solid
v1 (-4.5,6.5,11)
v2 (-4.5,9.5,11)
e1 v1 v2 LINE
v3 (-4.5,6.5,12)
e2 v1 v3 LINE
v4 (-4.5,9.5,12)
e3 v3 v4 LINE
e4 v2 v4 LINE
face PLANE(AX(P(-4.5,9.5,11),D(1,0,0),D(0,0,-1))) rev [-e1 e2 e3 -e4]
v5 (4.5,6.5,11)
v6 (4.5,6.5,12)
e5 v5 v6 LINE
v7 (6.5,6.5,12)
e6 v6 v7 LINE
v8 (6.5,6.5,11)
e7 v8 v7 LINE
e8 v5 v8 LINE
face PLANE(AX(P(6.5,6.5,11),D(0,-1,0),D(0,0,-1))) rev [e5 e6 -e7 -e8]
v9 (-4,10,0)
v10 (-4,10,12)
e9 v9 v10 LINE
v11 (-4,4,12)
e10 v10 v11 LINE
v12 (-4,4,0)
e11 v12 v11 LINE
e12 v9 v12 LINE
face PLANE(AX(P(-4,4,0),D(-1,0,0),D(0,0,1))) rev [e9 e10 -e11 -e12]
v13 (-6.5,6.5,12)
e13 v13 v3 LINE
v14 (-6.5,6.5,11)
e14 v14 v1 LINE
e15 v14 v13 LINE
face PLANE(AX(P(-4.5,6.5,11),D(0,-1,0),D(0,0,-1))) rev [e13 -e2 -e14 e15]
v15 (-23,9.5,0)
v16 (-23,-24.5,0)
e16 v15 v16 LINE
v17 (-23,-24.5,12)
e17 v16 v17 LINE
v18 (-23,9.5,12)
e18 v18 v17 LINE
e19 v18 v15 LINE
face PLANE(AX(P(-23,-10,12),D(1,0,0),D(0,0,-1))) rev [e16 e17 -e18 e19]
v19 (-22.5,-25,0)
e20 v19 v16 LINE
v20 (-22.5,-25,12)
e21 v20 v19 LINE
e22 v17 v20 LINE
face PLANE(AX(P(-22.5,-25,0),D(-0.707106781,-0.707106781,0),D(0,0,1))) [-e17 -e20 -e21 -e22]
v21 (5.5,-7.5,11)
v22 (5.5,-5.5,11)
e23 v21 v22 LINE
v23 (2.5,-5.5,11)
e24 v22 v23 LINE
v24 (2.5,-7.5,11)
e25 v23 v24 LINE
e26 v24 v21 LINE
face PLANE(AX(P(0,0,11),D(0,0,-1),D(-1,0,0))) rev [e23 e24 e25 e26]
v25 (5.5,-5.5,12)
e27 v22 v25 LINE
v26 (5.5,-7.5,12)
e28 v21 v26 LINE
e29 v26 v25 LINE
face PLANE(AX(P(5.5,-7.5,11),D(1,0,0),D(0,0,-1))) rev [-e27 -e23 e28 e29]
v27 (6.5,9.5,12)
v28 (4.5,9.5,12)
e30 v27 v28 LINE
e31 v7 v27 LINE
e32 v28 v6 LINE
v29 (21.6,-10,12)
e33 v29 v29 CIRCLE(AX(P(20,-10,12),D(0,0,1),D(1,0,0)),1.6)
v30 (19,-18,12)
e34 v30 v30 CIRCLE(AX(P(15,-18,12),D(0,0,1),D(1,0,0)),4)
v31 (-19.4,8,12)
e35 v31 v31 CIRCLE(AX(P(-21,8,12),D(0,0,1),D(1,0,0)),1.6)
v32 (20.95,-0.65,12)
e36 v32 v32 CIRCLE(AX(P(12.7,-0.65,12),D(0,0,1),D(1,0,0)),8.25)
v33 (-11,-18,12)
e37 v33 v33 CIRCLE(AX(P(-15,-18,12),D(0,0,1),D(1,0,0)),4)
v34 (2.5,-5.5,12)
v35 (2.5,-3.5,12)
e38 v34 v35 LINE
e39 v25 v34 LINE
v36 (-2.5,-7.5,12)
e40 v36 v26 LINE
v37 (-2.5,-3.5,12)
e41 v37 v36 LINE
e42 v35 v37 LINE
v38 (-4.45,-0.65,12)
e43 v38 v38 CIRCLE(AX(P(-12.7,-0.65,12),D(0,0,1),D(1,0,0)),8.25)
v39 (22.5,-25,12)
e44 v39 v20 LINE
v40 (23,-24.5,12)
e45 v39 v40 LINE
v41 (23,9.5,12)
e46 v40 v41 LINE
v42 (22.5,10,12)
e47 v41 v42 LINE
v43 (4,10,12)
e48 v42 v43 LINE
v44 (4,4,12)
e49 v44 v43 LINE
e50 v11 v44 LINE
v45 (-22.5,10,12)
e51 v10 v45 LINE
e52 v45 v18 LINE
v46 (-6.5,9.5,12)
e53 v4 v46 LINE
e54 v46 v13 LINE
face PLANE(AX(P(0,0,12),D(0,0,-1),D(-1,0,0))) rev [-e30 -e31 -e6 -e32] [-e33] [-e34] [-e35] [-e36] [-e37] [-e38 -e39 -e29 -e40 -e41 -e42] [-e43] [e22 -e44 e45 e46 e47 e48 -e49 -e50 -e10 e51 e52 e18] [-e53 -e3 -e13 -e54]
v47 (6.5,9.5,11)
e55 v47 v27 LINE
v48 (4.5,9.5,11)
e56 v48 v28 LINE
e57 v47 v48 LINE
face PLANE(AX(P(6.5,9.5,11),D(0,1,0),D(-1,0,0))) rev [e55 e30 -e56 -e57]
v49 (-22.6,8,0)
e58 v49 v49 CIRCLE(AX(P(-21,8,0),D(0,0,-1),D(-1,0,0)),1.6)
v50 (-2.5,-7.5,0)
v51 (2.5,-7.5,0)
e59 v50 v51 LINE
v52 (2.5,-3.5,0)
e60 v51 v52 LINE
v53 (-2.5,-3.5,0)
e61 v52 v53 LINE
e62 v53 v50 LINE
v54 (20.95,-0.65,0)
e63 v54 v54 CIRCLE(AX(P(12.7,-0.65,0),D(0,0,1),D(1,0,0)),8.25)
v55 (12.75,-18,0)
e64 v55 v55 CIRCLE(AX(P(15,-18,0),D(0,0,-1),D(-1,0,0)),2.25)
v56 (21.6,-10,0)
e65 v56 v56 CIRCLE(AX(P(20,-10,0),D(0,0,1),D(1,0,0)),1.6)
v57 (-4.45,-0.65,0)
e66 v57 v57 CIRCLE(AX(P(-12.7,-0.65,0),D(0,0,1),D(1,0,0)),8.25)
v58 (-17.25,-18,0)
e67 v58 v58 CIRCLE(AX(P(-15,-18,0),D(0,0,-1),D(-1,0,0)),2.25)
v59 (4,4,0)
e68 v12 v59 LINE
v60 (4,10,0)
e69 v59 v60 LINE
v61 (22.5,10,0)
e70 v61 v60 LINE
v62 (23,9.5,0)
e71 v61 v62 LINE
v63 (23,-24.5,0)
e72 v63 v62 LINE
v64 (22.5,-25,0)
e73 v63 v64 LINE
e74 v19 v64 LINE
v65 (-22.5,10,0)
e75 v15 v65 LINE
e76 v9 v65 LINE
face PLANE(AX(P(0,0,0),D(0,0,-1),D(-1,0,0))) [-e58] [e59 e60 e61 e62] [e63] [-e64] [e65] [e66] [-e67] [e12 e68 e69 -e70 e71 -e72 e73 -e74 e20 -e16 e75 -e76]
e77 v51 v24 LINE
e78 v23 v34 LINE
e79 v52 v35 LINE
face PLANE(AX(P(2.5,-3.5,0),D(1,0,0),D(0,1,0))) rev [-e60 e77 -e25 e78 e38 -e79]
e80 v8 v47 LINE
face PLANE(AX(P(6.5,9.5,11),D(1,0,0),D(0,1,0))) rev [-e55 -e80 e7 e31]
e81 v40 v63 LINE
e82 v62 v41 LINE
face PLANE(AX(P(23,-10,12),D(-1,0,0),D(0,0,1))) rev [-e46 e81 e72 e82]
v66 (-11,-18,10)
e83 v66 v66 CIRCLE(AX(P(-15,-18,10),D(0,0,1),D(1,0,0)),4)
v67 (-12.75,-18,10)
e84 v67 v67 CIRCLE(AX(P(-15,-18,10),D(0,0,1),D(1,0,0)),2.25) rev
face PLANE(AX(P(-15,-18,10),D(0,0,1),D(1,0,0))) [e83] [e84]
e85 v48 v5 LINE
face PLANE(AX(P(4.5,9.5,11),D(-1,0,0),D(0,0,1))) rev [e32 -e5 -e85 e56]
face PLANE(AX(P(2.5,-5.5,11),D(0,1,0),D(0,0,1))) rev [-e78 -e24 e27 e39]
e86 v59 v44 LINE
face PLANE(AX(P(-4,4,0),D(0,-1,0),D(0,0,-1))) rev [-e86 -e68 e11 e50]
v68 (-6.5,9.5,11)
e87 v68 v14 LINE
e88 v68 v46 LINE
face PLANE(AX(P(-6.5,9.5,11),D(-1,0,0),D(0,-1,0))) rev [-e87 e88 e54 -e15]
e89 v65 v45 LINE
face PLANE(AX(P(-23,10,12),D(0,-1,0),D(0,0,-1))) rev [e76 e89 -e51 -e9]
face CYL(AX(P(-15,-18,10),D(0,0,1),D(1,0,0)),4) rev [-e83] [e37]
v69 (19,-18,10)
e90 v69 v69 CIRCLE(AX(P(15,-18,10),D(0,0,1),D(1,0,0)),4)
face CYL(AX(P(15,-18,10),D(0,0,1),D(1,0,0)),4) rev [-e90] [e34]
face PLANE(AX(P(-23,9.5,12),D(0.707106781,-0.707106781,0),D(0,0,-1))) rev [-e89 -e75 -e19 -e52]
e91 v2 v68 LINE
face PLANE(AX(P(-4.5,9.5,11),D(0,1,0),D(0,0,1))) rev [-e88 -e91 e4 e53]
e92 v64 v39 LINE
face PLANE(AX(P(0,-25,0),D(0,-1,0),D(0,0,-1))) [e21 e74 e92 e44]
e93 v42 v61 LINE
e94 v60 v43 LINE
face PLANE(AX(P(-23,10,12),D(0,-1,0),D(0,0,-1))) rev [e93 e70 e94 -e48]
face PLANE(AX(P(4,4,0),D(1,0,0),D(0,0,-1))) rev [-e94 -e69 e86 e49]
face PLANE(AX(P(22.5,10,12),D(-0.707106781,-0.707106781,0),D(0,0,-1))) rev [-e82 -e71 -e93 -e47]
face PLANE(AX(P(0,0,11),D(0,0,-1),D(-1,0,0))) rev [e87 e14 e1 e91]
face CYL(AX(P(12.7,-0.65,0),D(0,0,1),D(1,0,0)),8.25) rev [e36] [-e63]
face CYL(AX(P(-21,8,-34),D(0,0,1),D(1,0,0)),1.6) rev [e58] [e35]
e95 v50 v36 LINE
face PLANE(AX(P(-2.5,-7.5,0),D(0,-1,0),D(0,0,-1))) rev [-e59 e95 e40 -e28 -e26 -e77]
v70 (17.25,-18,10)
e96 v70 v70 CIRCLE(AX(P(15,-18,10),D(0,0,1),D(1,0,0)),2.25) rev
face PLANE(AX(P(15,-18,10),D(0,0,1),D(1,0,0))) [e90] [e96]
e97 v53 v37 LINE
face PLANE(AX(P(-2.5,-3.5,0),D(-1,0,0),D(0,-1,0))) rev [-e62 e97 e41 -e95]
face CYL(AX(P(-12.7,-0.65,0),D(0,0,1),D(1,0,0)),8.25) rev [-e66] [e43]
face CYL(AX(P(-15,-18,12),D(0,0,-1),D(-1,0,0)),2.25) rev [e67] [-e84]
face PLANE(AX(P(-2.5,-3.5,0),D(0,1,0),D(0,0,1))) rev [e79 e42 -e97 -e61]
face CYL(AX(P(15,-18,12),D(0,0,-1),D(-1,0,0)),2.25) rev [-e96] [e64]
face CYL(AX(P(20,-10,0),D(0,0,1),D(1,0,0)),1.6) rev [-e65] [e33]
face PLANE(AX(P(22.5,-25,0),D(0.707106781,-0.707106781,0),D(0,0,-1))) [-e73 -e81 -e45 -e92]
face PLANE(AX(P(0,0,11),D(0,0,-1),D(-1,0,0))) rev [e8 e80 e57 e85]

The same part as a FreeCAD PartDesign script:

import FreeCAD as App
import Part
import Sketcher

V = App.Vector


def edges_at(feature, points):
    """Names of the edges that pass closest to the given points."""
    edges = feature.Shape.Edges
    near = lambda p: min(range(len(edges)), key=lambda i: edges[i].distToShape(Part.Vertex(*p))[0])
    return sorted({f"Edge{near(p) + 1}" for p in points})


def add_polygon(sketch, points):
    """Adds a closed chain of lines whose ends are joined by coincident constraints."""
    first, n = sketch.GeometryCount, len(points)
    for a, b in zip(points, points[1:] + points[:1]):
        sketch.addGeometry(Part.LineSegment(App.Vector(*a, 0), App.Vector(*b, 0)), False)
    for i in range(n):
        sketch.addConstraint(Sketcher.Constraint("Coincident", first + i, 2, first + (i + 1) % n, 1))

doc = App.newDocument("Part")
params = doc.addObject("Spreadsheet::Sheet", "Params")
for row, (alias, value) in enumerate([
    ("sketch1_width", "46 mm"),
    ("sketch1_height", "20 mm"),
    ("pad1_length", "12 mm"),
    ("sketch2_diameter", "16.5 mm"),
    ("sketch3_width", "8 mm"),
    ("sketch3_height", "6 mm"),
    ("sketch4_width", "5 mm"),
    ("sketch4_height", "4 mm"),
    ("sketch5_width", "3 mm"),
    ("sketch5_width2", "2 mm"),
    ("pocket4_length", "1 mm"),
    ("sketch6_width", "46 mm"),
    ("sketch6_height", "12 mm"),
    ("pad2_length", "15 mm"),
    ("sketch7_diameter", "3.2 mm"),
    ("pocket5_length", "46 mm"),
    ("sketch8_diameter", "4.5 mm"),
    ("sketch9_diameter", "3.2 mm"),
    ("sketch10_diameter", "8 mm"),
    ("pocket8_length", "2 mm"),
    ("chamfer_size", "0.5 mm"),
    ("chamfer2_size", "0.5 mm"),
], start=1):
    params.set(f"A{row}", alias)
    params.set(f"B{row}", "=" + value)
    params.setAlias(f"B{row}", alias)

body = doc.addObject("PartDesign::Body", "Body")

sketch1 = doc.addObject("Sketcher::SketchObject", "Sketch")
body.addObject(sketch1)
sketch1.AttachmentSupport = (doc.XY_Plane, [""])
sketch1.MapMode = "FlatFace"
add_polygon(sketch1, [(-23, 10), (-23, -10), (23, -10), (23, 10)])
sketch1.addConstraint(Sketcher.Constraint("Vertical", 0))
sketch1.addConstraint(Sketcher.Constraint("Horizontal", 1))
sketch1.addConstraint(Sketcher.Constraint("Vertical", 2))
sketch1.addConstraint(Sketcher.Constraint("Horizontal", 3))
sketch1.addConstraint(Sketcher.Constraint("Symmetric", 0, 2, 2, 2, -1, 1))
sketch1.addConstraint(Sketcher.Constraint("DistanceX", 1, 1, 1, 2, 46.0))
sketch1.addConstraint(Sketcher.Constraint("DistanceY", 0, 2, 0, 1, 20.0))
sketch1.setExpression("Constraints[9]", "Params.sketch1_width")
sketch1.setExpression("Constraints[10]", "Params.sketch1_height")
pad1 = doc.addObject("PartDesign::Pad", "Pad")
body.addObject(pad1)
pad1.Profile = sketch1
pad1.setExpression("Length", "Params.pad1_length")

sketch2 = doc.addObject("Sketcher::SketchObject", "Sketch001")
body.addObject(sketch2)
sketch2.AttachmentSupport = (doc.XY_Plane, [""])
sketch2.MapMode = "FlatFace"
sketch2.AttachmentOffset = App.Placement(V(0, 0, 12), App.Rotation())
sketch2.addGeometry(Part.Circle(V(-13, -1, 0), V(0, 0, 1), 8), False)
sketch2.addGeometry(Part.Circle(V(13, -1, 0), V(0, 0, 1), 8), False)
sketch2.addConstraint(Sketcher.Constraint("Equal", 0, 1))
sketch2.addConstraint(Sketcher.Constraint("Symmetric", 0, 3, 1, 3, -2))
sketch2.addConstraint(Sketcher.Constraint("Diameter", 0, 16.5))
sketch2.addConstraint(Sketcher.Constraint("DistanceX", 0, 3, -1, 1, 12.7))
sketch2.addConstraint(Sketcher.Constraint("DistanceY", 0, 3, -1, 1, 0.65))
sketch2.setExpression("Constraints[2]", "Params.sketch2_diameter")
pocket1 = doc.addObject("PartDesign::Pocket", "Pocket")
body.addObject(pocket1)
pocket1.Profile = sketch2
pocket1.Type = "ThroughAll"

sketch3 = doc.addObject("Sketcher::SketchObject", "Sketch002")
body.addObject(sketch3)
sketch3.AttachmentSupport = (doc.XY_Plane, [""])
sketch3.MapMode = "FlatFace"
sketch3.AttachmentOffset = App.Placement(V(0, 0, 12), App.Rotation())
add_polygon(sketch3, [(-4, 10), (-4, 4), (4, 4), (4, 10)])
sketch3.addConstraint(Sketcher.Constraint("Vertical", 0))
sketch3.addConstraint(Sketcher.Constraint("Horizontal", 1))
sketch3.addConstraint(Sketcher.Constraint("Vertical", 2))
sketch3.addConstraint(Sketcher.Constraint("Horizontal", 3))
sketch3.addConstraint(Sketcher.Constraint("DistanceX", 1, 1, 1, 2, 8.0))
sketch3.addConstraint(Sketcher.Constraint("DistanceY", 0, 2, 0, 1, 6.0))
sketch3.addConstraint(Sketcher.Constraint("DistanceX", 0, 2, -1, 1, 4.0))
sketch3.addConstraint(Sketcher.Constraint("DistanceY", -1, 1, 0, 2, 4.0))
sketch3.setExpression("Constraints[8]", "Params.sketch3_width")
sketch3.setExpression("Constraints[9]", "Params.sketch3_height")
pocket2 = doc.addObject("PartDesign::Pocket", "Pocket001")
body.addObject(pocket2)
pocket2.Profile = sketch3
pocket2.Type = "ThroughAll"

sketch4 = doc.addObject("Sketcher::SketchObject", "Sketch003")
body.addObject(sketch4)
sketch4.AttachmentSupport = (doc.XY_Plane, [""])
sketch4.MapMode = "FlatFace"
sketch4.AttachmentOffset = App.Placement(V(0, 0, 12), App.Rotation())
add_polygon(sketch4, [(-2.5, -3.5), (-2.5, -7.5), (2.5, -7.5), (2.5, -3.5)])
sketch4.addConstraint(Sketcher.Constraint("Vertical", 0))
sketch4.addConstraint(Sketcher.Constraint("Horizontal", 1))
sketch4.addConstraint(Sketcher.Constraint("Vertical", 2))
sketch4.addConstraint(Sketcher.Constraint("Horizontal", 3))
sketch4.addConstraint(Sketcher.Constraint("DistanceX", 1, 1, 1, 2, 5.0))
sketch4.addConstraint(Sketcher.Constraint("DistanceY", 0, 2, 0, 1, 4.0))
sketch4.addConstraint(Sketcher.Constraint("DistanceX", 0, 2, -1, 1, 2.5))
sketch4.addConstraint(Sketcher.Constraint("DistanceY", 0, 2, -1, 1, 7.5))
sketch4.setExpression("Constraints[8]", "Params.sketch4_width")
sketch4.setExpression("Constraints[9]", "Params.sketch4_height")
pocket3 = doc.addObject("PartDesign::Pocket", "Pocket002")
body.addObject(pocket3)
pocket3.Profile = sketch4
pocket3.Type = "ThroughAll"

sketch5 = doc.addObject("Sketcher::SketchObject", "Sketch004")
body.addObject(sketch5)
sketch5.AttachmentSupport = (doc.XY_Plane, [""])
sketch5.MapMode = "FlatFace"
sketch5.AttachmentOffset = App.Placement(V(0, 0, 12), App.Rotation())
add_polygon(sketch5, [(2.5, -5.5), (2.5, -7.5), (5.5, -7.5), (5.5, -5.5)])
add_polygon(sketch5, [(-6.5, 9.5), (-6.5, 6.5), (-4.5, 6.5), (-4.5, 9.5)])
add_polygon(sketch5, [(4.5, 9.5), (4.5, 6.5), (6.5, 6.5), (6.5, 9.5)])
sketch5.addConstraint(Sketcher.Constraint("Vertical", 0))
sketch5.addConstraint(Sketcher.Constraint("Horizontal", 1))
sketch5.addConstraint(Sketcher.Constraint("Vertical", 2))
sketch5.addConstraint(Sketcher.Constraint("Horizontal", 3))
sketch5.addConstraint(Sketcher.Constraint("Vertical", 4))
sketch5.addConstraint(Sketcher.Constraint("Horizontal", 5))
sketch5.addConstraint(Sketcher.Constraint("Vertical", 6))
sketch5.addConstraint(Sketcher.Constraint("Horizontal", 7))
sketch5.addConstraint(Sketcher.Constraint("Vertical", 8))
sketch5.addConstraint(Sketcher.Constraint("Horizontal", 9))
sketch5.addConstraint(Sketcher.Constraint("Vertical", 10))
sketch5.addConstraint(Sketcher.Constraint("Horizontal", 11))
sketch5.addConstraint(Sketcher.Constraint("Symmetric", 5, 2, 8, 2, -2))
sketch5.addConstraint(Sketcher.Constraint("Symmetric", 7, 2, 10, 2, -2))
sketch5.addConstraint(Sketcher.Constraint("Equal", 11, 0))
sketch5.addConstraint(Sketcher.Constraint("Equal", 3, 4))
sketch5.addConstraint(Sketcher.Constraint("DistanceX", 1, 1, 1, 2, 3.0))
sketch5.addConstraint(Sketcher.Constraint("DistanceX", 5, 1, 5, 2, 2.0))
sketch5.addConstraint(Sketcher.Constraint("DistanceX", 4, 2, 3, 2, 9.0))
sketch5.addConstraint(Sketcher.Constraint("DistanceY", 3, 2, 4, 2, 12.0))
sketch5.addConstraint(Sketcher.Constraint("DistanceX", 5, 2, 8, 2, 9.0))
sketch5.addConstraint(Sketcher.Constraint("DistanceY", 0, 2, -1, 1, 7.5))
sketch5.setExpression("Constraints[28]", "Params.sketch5_width")
sketch5.setExpression("Constraints[29]", "Params.sketch5_width2")
pocket4 = doc.addObject("PartDesign::Pocket", "Pocket003")
body.addObject(pocket4)
pocket4.Profile = sketch5
pocket4.setExpression("Length", "Params.pocket4_length")

sketch6 = doc.addObject("Sketcher::SketchObject", "Sketch005")
body.addObject(sketch6)
sketch6.AttachmentSupport = (doc.XZ_Plane, [""])
sketch6.MapMode = "FlatFace"
sketch6.AttachmentOffset = App.Placement(V(0, 0, 10), App.Rotation())
add_polygon(sketch6, [(-23, 12), (-23, 0), (23, 0), (23, 12)])
sketch6.addConstraint(Sketcher.Constraint("Vertical", 0))
sketch6.addConstraint(Sketcher.Constraint("Horizontal", 1))
sketch6.addConstraint(Sketcher.Constraint("Vertical", 2))
sketch6.addConstraint(Sketcher.Constraint("Horizontal", 3))
sketch6.addConstraint(Sketcher.Constraint("Symmetric", 0, 2, 1, 2, -1, 1))
sketch6.addConstraint(Sketcher.Constraint("DistanceX", 1, 1, 1, 2, 46.0))
sketch6.addConstraint(Sketcher.Constraint("DistanceY", 0, 2, 0, 1, 12.0))
sketch6.setExpression("Constraints[9]", "Params.sketch6_width")
sketch6.setExpression("Constraints[10]", "Params.sketch6_height")
pad2 = doc.addObject("PartDesign::Pad", "Pad001")
body.addObject(pad2)
pad2.Profile = sketch6
pad2.setExpression("Length", "Params.pad2_length")

sketch7 = doc.addObject("Sketcher::SketchObject", "Sketch006")
body.addObject(sketch7)
sketch7.AttachmentSupport = (doc.XY_Plane, [""])
sketch7.MapMode = "FlatFace"
sketch7.AttachmentOffset = App.Placement(V(0, 0, 12), App.Rotation())
sketch7.addGeometry(Part.Circle(V(-21, 8, 0), V(0, 0, 1), 1.6), False)
sketch7.addConstraint(Sketcher.Constraint("Diameter", 0, 3.2))
sketch7.addConstraint(Sketcher.Constraint("DistanceX", 0, 3, -1, 1, 21.0))
sketch7.addConstraint(Sketcher.Constraint("DistanceY", -1, 1, 0, 3, 8.0))
sketch7.setExpression("Constraints[0]", "Params.sketch7_diameter")
pocket5 = doc.addObject("PartDesign::Pocket", "Pocket004")
body.addObject(pocket5)
pocket5.Profile = sketch7
pocket5.setExpression("Length", "Params.pocket5_length")

sketch8 = doc.addObject("Sketcher::SketchObject", "Sketch007")
body.addObject(sketch8)
sketch8.AttachmentSupport = (doc.XY_Plane, [""])
sketch8.MapMode = "FlatFace"
sketch8.addGeometry(Part.Circle(V(15, -18, 0), V(0, 0, 1), 2.2), False)
sketch8.addGeometry(Part.Circle(V(-15, -18, 0), V(0, 0, 1), 2.2), False)
sketch8.addConstraint(Sketcher.Constraint("Equal", 0, 1))
sketch8.addConstraint(Sketcher.Constraint("Symmetric", 0, 3, 1, 3, -2))
sketch8.addConstraint(Sketcher.Constraint("Diameter", 0, 4.5))
sketch8.addConstraint(Sketcher.Constraint("DistanceX", -1, 1, 0, 3, 15.0))
sketch8.addConstraint(Sketcher.Constraint("DistanceY", 0, 3, -1, 1, 18.0))
sketch8.setExpression("Constraints[2]", "Params.sketch8_diameter")
pocket6 = doc.addObject("PartDesign::Pocket", "Pocket005")
body.addObject(pocket6)
pocket6.Profile = sketch8
pocket6.Type = "ThroughAll"
pocket6.Reversed = True

sketch9 = doc.addObject("Sketcher::SketchObject", "Sketch008")
body.addObject(sketch9)
sketch9.AttachmentSupport = (doc.XY_Plane, [""])
sketch9.MapMode = "FlatFace"
sketch9.AttachmentOffset = App.Placement(V(0, 0, 12), App.Rotation())
sketch9.addGeometry(Part.Circle(V(20, -10, 0), V(0, 0, 1), 1.6), False)
sketch9.addConstraint(Sketcher.Constraint("Diameter", 0, 3.2))
sketch9.addConstraint(Sketcher.Constraint("DistanceX", -1, 1, 0, 3, 20.0))
sketch9.addConstraint(Sketcher.Constraint("DistanceY", 0, 3, -1, 1, 10.0))
sketch9.setExpression("Constraints[0]", "Params.sketch9_diameter")
pocket7 = doc.addObject("PartDesign::Pocket", "Pocket006")
body.addObject(pocket7)
pocket7.Profile = sketch9
pocket7.Type = "ThroughAll"

sketch10 = doc.addObject("Sketcher::SketchObject", "Sketch009")
body.addObject(sketch10)
sketch10.AttachmentSupport = (doc.XY_Plane, [""])
sketch10.MapMode = "FlatFace"
sketch10.AttachmentOffset = App.Placement(V(0, 0, 12), App.Rotation())
sketch10.addGeometry(Part.Circle(V(-15, -18, 0), V(0, 0, 1), 4), False)
sketch10.addGeometry(Part.Circle(V(15, -18, 0), V(0, 0, 1), 4), False)
sketch10.addConstraint(Sketcher.Constraint("Equal", 0, 1))
sketch10.addConstraint(Sketcher.Constraint("Symmetric", 0, 3, 1, 3, -2))
sketch10.addConstraint(Sketcher.Constraint("Diameter", 0, 8.0))
sketch10.addConstraint(Sketcher.Constraint("DistanceX", 0, 3, -1, 1, 15.0))
sketch10.addConstraint(Sketcher.Constraint("DistanceY", 0, 3, -1, 1, 18.0))
sketch10.setExpression("Constraints[2]", "Params.sketch10_diameter")
pocket8 = doc.addObject("PartDesign::Pocket", "Pocket007")
body.addObject(pocket8)
pocket8.Profile = sketch10
pocket8.setExpression("Length", "Params.pocket8_length")
doc.recompute()

chamfer = doc.addObject("PartDesign::Chamfer", "Chamfer")
body.addObject(chamfer)
chamfer.Base = (pocket8, edges_at(pocket8, [(-23, 10, 6), (23, 10, 6)]))
chamfer.setExpression("Size", "Params.chamfer_size")
doc.recompute()

chamfer2 = doc.addObject("PartDesign::Chamfer", "Chamfer001")
body.addObject(chamfer2)
chamfer2.Base = (chamfer, edges_at(chamfer, [(-23, -25, 6), (23, -25, 6)]))
chamfer2.setExpression("Size", "Params.chamfer2_size")

doc.recompute()
